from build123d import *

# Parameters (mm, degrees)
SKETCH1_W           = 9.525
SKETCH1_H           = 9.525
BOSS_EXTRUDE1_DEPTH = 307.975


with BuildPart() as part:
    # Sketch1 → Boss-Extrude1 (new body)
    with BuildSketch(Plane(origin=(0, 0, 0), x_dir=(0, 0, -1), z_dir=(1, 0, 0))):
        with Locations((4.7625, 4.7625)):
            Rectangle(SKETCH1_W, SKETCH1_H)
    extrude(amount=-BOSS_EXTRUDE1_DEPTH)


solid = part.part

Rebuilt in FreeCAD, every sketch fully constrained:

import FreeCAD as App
import Part
import Sketcher
from FreeCAD import Vector
Q = App.Units.Quantity


def add_polygon(sketch, points):
    """Adds a closed chain of lines whose ends are joined by coincident constraints."""
    first, n = sketch.GeometryCount, len(points)
    for a, b in zip(points, points[1:] + points[:1]):
        sketch.addGeometry(Part.LineSegment(App.Vector(*a, 0), App.Vector(*b, 0)), False)
    for i in range(n):
        sketch.addConstraint(Sketcher.Constraint("Coincident", first + i, 2, first + (i + 1) % n, 1))

doc = App.newDocument("Part")
params = doc.addObject("Spreadsheet::Sheet", "Params")
for row, (alias, value) in enumerate([
    ("sketch1_width", "0.375 in"),
    ("pad1_length", "12.125 in"),
], start=1):
    params.set(f"A{row}", alias)
    params.set(f"B{row}", "=" + value)
    params.setAlias(f"B{row}", alias)

body = doc.addObject("PartDesign::Body", "Body")

# Sketch on YZ plane
sketch1 = body.newObject("Sketcher::SketchObject", "Sketch")
sketch1.AttachmentSupport = (doc.getObject("YZ_Plane"), [""])
sketch1.MapMode = "FlatFace"
add_polygon(sketch1, [(10, 0), (0, 0), (0, -10), (10, -10)])  # lines 0-3
sketch1.addConstraint([
    Sketcher.Constraint("Horizontal", 0),
    Sketcher.Constraint("Vertical", 1),
    Sketcher.Constraint("Horizontal", 2),
    Sketcher.Constraint("Vertical", 3),
    Sketcher.Constraint("Coincident", 0, 2, -1, 1),
    Sketcher.Constraint("Equal", 2, 1),
    Sketcher.Constraint("DistanceX", 0, 2, 0, 1, Q("0.375 in")),
])
sketch1.setExpression("Constraints[10]", "Params.sketch1_width")
pad1 = body.newObject("PartDesign::Pad", "Pad")
pad1.Profile = sketch1
pad1.setExpression("Length", "Params.pad1_length")
pad1.Reversed = True

doc.recompute()
